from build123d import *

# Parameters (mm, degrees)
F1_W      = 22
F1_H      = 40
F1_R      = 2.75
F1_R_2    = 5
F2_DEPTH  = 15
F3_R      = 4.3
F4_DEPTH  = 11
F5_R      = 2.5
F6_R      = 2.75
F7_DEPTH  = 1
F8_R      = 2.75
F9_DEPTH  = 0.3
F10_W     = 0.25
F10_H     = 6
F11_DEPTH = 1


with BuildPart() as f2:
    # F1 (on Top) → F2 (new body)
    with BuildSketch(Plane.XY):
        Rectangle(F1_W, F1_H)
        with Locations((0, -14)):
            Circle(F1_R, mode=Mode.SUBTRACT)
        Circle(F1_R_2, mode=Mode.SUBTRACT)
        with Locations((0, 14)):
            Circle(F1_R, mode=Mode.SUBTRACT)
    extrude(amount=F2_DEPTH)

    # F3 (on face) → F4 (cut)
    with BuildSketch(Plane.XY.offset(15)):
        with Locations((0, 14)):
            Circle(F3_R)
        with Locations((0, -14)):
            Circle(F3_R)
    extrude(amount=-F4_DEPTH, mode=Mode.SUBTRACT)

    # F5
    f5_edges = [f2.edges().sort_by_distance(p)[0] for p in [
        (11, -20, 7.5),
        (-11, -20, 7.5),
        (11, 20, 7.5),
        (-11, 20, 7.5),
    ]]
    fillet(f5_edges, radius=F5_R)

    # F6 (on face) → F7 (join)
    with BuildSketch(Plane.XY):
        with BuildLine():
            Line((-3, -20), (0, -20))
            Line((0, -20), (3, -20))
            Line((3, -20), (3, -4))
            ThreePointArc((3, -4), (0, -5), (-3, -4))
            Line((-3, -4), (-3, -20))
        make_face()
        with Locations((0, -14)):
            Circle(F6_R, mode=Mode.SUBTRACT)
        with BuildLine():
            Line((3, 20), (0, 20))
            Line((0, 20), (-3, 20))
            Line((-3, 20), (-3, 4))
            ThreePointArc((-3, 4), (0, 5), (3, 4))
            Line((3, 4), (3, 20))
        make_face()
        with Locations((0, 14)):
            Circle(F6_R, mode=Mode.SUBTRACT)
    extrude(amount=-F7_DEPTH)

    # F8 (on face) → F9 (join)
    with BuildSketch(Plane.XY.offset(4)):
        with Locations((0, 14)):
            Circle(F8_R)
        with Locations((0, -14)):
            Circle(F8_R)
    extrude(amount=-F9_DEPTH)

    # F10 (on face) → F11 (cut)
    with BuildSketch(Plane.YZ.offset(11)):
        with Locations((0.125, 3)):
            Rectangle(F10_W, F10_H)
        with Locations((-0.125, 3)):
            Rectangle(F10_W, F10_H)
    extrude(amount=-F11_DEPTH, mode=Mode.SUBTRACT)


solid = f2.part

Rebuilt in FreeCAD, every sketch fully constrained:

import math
import FreeCAD as App
import Part
import Sketcher
Q = App.Units.Quantity


def edges_at(feature, points):
    """Names of the edges that pass closest to the given points."""
    edges = feature.Shape.Edges
    near = lambda p: min(range(len(edges)), key=lambda i: edges[i].distToShape(Part.Vertex(*p))[0])
    return sorted({f"Edge{near(p) + 1}" for p in points})


def add_polygon(sketch, points):
    """Adds a closed chain of lines whose ends are joined by coincident constraints."""
    first, n = sketch.GeometryCount, len(points)
    for a, b in zip(points, points[1:] + points[:1]):
        sketch.addGeometry(Part.LineSegment(App.Vector(*a, 0), App.Vector(*b, 0)), False)
    for i in range(n):
        sketch.addConstraint(Sketcher.Constraint("Coincident", first + i, 2, first + (i + 1) % n, 1))

doc = App.newDocument("Part")
body = doc.addObject("PartDesign::Body", "Body")

sketch1 = doc.addObject("Sketcher::SketchObject", "Sketch")
body.addObject(sketch1)
sketch1.AttachmentSupport = (doc.XY_Plane, [""])
sketch1.MapMode = "FlatFace"
add_polygon(sketch1, [(-11, 20), (-11, -20), (11, -20), (11, 20)])
sketch1.addGeometry(Part.Circle(App.Vector(0, -14, 0), App.Vector(0, 0, 1), 2.8), False)
sketch1.addGeometry(Part.Circle(App.Vector(0, 0, 0), App.Vector(0, 0, 1), 5), False)
sketch1.addGeometry(Part.Circle(App.Vector(0, 14, 0), App.Vector(0, 0, 1), 2.8), False)
sketch1.addConstraint([
    Sketcher.Constraint("Vertical", 0),
    Sketcher.Constraint("Horizontal", 1),
    Sketcher.Constraint("Vertical", 2),
    Sketcher.Constraint("Horizontal", 3),
    Sketcher.Constraint("Coincident", 5, 3, -1, 1),
    Sketcher.Constraint("Equal", 4, 6),
    Sketcher.Constraint("Symmetric", 4, 3, 6, 3, -1, 1),
    Sketcher.Constraint("Symmetric", 0, 2, 2, 2, -1, 1),
    Sketcher.Constraint("PointOnObject", 4, 3, -2),
    Sketcher.Constraint("Diameter", 5, Q("10 mm")),
    Sketcher.Constraint("Diameter", 4, Q("5.5 mm")),
    Sketcher.Constraint("DistanceX", 1, 1, 1, 2, Q("22 mm")),
    Sketcher.Constraint("DistanceY", 0, 2, 0, 1, Q("40 mm")),
    Sketcher.Constraint("DistanceY", 4, 3, -1, 1, Q("14 mm")),
])
pad1 = doc.addObject("PartDesign::Pad", "Pad")
body.addObject(pad1)
pad1.Profile = sketch1
pad1.Length = 15

sketch2 = doc.addObject("Sketcher::SketchObject", "Sketch001")
body.addObject(sketch2)
sketch2.AttachmentSupport = (doc.XY_Plane, [""])
sketch2.MapMode = "FlatFace"
sketch2.AttachmentOffset = App.Placement(App.Vector(0, 0, 15), App.Rotation())
sketch2.addGeometry([
    Part.Circle(App.Vector(0, 14, 0), App.Vector(0, 0, 1), 4.3),
    Part.Circle(App.Vector(0, -14, 0), App.Vector(0, 0, 1), 4.3),
], False)
sketch2.addConstraint([
    Sketcher.Constraint("Equal", 0, 1),
    Sketcher.Constraint("Symmetric", 0, 3, 1, 3, -1, 1),
    Sketcher.Constraint("PointOnObject", 0, 3, -2),
    Sketcher.Constraint("Diameter", 0, Q("8.6 mm")),
    Sketcher.Constraint("DistanceY", -1, 1, 0, 3, Q("14 mm")),
])
pocket1 = doc.addObject("PartDesign::Pocket", "Pocket")
body.addObject(pocket1)
pocket1.Profile = sketch2
pocket1.Length = 11
doc.recompute()

fillet = doc.addObject("PartDesign::Fillet", "Fillet")
body.addObject(fillet)
fillet.Base = (pocket1, edges_at(pocket1, [
    (11, -20, 7.5),
    (-11, -20, 7.5),
    (11, 20, 7.5),
    (-11, 20, 7.5),
]))
fillet.Radius = 2.5

sketch3 = doc.addObject("Sketcher::SketchObject", "Sketch002")
body.addObject(sketch3)
sketch3.AttachmentSupport = (doc.XY_Plane, [""])
sketch3.MapMode = "FlatFace"
sketch3.addGeometry([
    Part.LineSegment(App.Vector(-3, -20, 0), App.Vector(3, -20, 0)),
    Part.LineSegment(App.Vector(3, -20, 0), App.Vector(3, -4, 0)),
    Part.ArcOfCircle(Part.Circle(App.Vector(0, 0, 0), App.Vector(0, 0, 1), 5), math.radians(-127), math.radians(-53)),
    Part.LineSegment(App.Vector(-3, -4, 0), App.Vector(-3, -20, 0)),
    Part.Circle(App.Vector(0, -14, 0), App.Vector(0, 0, 1), 2.8),
    Part.LineSegment(App.Vector(3, 20, 0), App.Vector(-3, 20, 0)),
    Part.LineSegment(App.Vector(-3, 20, 0), App.Vector(-3, 4, 0)),
    Part.ArcOfCircle(Part.Circle(App.Vector(0, 0, 0), App.Vector(0, 0, 1), 5), math.radians(53), math.radians(127)),
    Part.LineSegment(App.Vector(3, 4, 0), App.Vector(3, 20, 0)),
    Part.Circle(App.Vector(0, 14, 0), App.Vector(0, 0, 1), 2.8),
], False)
sketch3.addConstraint([
    Sketcher.Constraint("Coincident", 0, 2, 1, 1),
    Sketcher.Constraint("Coincident", 1, 2, 2, 2),
    Sketcher.Constraint("Coincident", 2, 1, 3, 1),
    Sketcher.Constraint("Coincident", 3, 2, 0, 1),
    Sketcher.Constraint("Coincident", 5, 2, 6, 1),
    Sketcher.Constraint("Coincident", 6, 2, 7, 2),
    Sketcher.Constraint("Coincident", 7, 1, 8, 1),
    Sketcher.Constraint("Coincident", 8, 2, 5, 1),
    Sketcher.Constraint("Horizontal", 0),
    Sketcher.Constraint("Vertical", 1),
    Sketcher.Constraint("Vertical", 3),
    Sketcher.Constraint("Horizontal", 5),
    Sketcher.Constraint("Vertical", 6),
    Sketcher.Constraint("Vertical", 8),
    Sketcher.Constraint("Coincident", 2, 3, -1, 1),
    Sketcher.Constraint("Coincident", 7, 3, -1, 1),
    Sketcher.Constraint("Equal", 2, 7),
    Sketcher.Constraint("Equal", 4, 9),
    Sketcher.Constraint("Symmetric", 4, 3, 9, 3, -1, 1),
    Sketcher.Constraint("Symmetric", 0, 2, 5, 2, -1, 1),
    Sketcher.Constraint("PointOnObject", 4, 3, -2),
    Sketcher.Constraint("Horizontal", 1, 2, 2, 1),
    Sketcher.Constraint("Horizontal", 6, 2, 7, 1),
    Sketcher.Constraint("Radius", 2, Q("5 mm")),
    Sketcher.Constraint("Diameter", 4, Q("5.5 mm")),
    Sketcher.Constraint("DistanceX", 0, 1, 0, 2, Q("6 mm")),
    Sketcher.Constraint("DistanceY", 1, 1, 1, 2, Q("16 mm")),
    Sketcher.Constraint("DistanceY", 4, 3, -1, 1, Q("14 mm")),
])
pad2 = doc.addObject("PartDesign::Pad", "Pad001")
body.addObject(pad2)
pad2.Profile = sketch3
pad2.Length = 1
pad2.Reversed = True

sketch4 = doc.addObject("Sketcher::SketchObject", "Sketch003")
body.addObject(sketch4)
sketch4.AttachmentSupport = (doc.XY_Plane, [""])
sketch4.MapMode = "FlatFace"
sketch4.AttachmentOffset = App.Placement(App.Vector(0, 0, 4), App.Rotation())
sketch4.addGeometry([
    Part.Circle(App.Vector(0, 14, 0), App.Vector(0, 0, 1), 2.8),
    Part.Circle(App.Vector(0, -14, 0), App.Vector(0, 0, 1), 2.8),
], False)
sketch4.addConstraint([
    Sketcher.Constraint("Equal", 0, 1),
    Sketcher.Constraint("Symmetric", 0, 3, 1, 3, -1, 1),
    Sketcher.Constraint("PointOnObject", 0, 3, -2),
    Sketcher.Constraint("Diameter", 0, Q("5.5 mm")),
    Sketcher.Constraint("DistanceY", -1, 1, 0, 3, Q("14 mm")),
])
pad3 = doc.addObject("PartDesign::Pad", "Pad002")
body.addObject(pad3)
pad3.Profile = sketch4
pad3.Length = 0.3
pad3.Reversed = True

sketch5 = doc.addObject("Sketcher::SketchObject", "Sketch004")
body.addObject(sketch5)
sketch5.AttachmentSupport = (doc.YZ_Plane, [""])
sketch5.MapMode = "FlatFace"
sketch5.AttachmentOffset = App.Placement(App.Vector(0, 0, 11), App.Rotation())
add_polygon(sketch5, [(0.2, 0), (0.2, 6), (-0.2, 6), (-0.2, 0)])
sketch5.addConstraint([
    Sketcher.Constraint("Vertical", 0),
    Sketcher.Constraint("Horizontal", 1),
    Sketcher.Constraint("Vertical", 2),
    Sketcher.Constraint("Horizontal", 3),
    Sketcher.Constraint("Symmetric", 2, 2, 3, 2, -1, 1),
    Sketcher.Constraint("DistanceY", 0, 1, 0, 2, Q("6 mm")),
    Sketcher.Constraint("DistanceX", 1, 2, 1, 1, Q("0.5 mm")),
])
pocket2 = doc.addObject("PartDesign::Pocket", "Pocket001")
body.addObject(pocket2)
pocket2.Profile = sketch5
pocket2.Length = 1

doc.recompute()
